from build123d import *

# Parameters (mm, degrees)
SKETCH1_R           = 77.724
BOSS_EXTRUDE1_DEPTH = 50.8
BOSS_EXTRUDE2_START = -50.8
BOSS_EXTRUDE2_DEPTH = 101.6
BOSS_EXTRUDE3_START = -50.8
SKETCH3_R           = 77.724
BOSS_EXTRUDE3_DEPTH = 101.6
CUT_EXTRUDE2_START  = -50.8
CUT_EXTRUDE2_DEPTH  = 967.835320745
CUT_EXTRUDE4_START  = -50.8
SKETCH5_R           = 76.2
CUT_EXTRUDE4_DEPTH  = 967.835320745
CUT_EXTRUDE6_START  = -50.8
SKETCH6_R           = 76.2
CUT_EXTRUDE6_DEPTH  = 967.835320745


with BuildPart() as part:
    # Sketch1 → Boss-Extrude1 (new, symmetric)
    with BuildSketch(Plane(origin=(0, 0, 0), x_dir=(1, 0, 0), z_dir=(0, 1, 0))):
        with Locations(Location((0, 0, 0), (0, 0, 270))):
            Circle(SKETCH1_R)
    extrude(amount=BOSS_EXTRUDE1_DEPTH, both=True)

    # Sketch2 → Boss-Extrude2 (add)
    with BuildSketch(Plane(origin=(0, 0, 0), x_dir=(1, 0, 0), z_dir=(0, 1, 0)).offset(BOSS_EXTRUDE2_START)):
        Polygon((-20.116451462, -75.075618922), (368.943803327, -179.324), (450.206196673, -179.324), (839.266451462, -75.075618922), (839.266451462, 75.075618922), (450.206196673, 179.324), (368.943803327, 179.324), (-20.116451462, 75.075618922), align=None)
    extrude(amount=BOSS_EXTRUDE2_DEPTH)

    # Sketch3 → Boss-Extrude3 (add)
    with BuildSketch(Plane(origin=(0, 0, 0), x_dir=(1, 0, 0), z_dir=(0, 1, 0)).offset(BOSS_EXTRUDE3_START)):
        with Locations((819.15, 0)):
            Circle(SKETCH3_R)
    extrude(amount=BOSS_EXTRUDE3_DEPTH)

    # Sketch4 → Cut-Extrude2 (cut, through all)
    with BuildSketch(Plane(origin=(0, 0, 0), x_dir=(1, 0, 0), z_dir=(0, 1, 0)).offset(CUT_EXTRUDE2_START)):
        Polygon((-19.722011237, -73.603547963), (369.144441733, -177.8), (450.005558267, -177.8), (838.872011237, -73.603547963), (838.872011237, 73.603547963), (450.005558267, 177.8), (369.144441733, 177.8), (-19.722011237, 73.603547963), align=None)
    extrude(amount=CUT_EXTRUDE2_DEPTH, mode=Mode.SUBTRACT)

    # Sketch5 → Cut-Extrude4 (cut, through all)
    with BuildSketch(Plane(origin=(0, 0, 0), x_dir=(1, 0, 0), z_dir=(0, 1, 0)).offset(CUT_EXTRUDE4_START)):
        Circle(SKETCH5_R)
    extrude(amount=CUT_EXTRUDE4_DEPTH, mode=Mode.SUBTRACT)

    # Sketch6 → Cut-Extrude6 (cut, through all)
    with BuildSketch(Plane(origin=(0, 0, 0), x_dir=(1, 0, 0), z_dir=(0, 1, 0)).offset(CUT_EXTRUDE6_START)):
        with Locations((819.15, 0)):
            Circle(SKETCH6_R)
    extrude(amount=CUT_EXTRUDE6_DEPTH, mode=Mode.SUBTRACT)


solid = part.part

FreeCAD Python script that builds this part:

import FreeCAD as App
import Part
import Sketcher
from FreeCAD import Vector
Q = App.Units.Quantity


def add_polygon(sketch, points):
    """Adds a closed chain of lines whose ends are joined by coincident constraints."""
    first, n = sketch.GeometryCount, len(points)
    for a, b in zip(points, points[1:] + points[:1]):
        sketch.addGeometry(Part.LineSegment(App.Vector(*a, 0), App.Vector(*b, 0)), False)
    for i in range(n):
        sketch.addConstraint(Sketcher.Constraint("Coincident", first + i, 2, first + (i + 1) % n, 1))

doc = App.newDocument("Part")
body = doc.addObject("PartDesign::Body", "Body")

sketch1 = doc.addObject("Sketcher::SketchObject", "Sketch")
body.addObject(sketch1)
sketch1.AttachmentSupport = (doc.XZ_Plane, [""])
sketch1.MapMode = "FlatFace"
sketch1.addGeometry(Part.Circle(Vector(0, 0, 0), Vector(0, 0, 1), 78), False)
sketch1.addConstraint([
    Sketcher.Constraint("Coincident", 0, 3, -1, 1),
    Sketcher.Constraint("Diameter", 0, Q("6.12 in")),
])
pad1 = doc.addObject("PartDesign::Pad", "Pad")
body.addObject(pad1)
pad1.Profile = sketch1
pad1.Length = Q("4 in")
pad1.Midplane = True

sketch2 = doc.addObject("Sketcher::SketchObject", "Sketch001")
body.addObject(sketch2)
sketch2.AttachmentSupport = (doc.XZ_Plane, [""])
sketch2.MapMode = "FlatFace"
sketch2.AttachmentOffset = App.Placement(Vector(0, 0, 2 * 25.4), App.Rotation())
add_polygon(sketch2, [(-20, 75), (369, 179), (450, 179), (839, 75), (839, -75), (450, -179), (369, -179), (-20, -75)])
sketch2.addConstraint([
    Sketcher.Constraint("Horizontal", 1),
    Sketcher.Constraint("Vertical", 3),
    Sketcher.Constraint("Horizontal", 5),
    Sketcher.Constraint("Vertical", 7),
    Sketcher.Constraint("Symmetric", 1, 2, 4, 2, -1),
    Sketcher.Constraint("Parallel", 0, 4),
    Sketcher.Constraint("Parallel", 2, 6),
    Sketcher.Constraint("Horizontal", 3, 2, 6, 2),
    Sketcher.Constraint("Horizontal", 2, 2, 7, 2),
    Sketcher.Constraint("Vertical", 0, 2, 5, 2),
    Sketcher.Constraint("Angle", 0, Q("15 deg")),
    Sketcher.Constraint("DistanceY", -1, 1, 0, 2, Q("7.06 in")),
    Sketcher.Constraint("DistanceX", 1, 1, 1, 2, 81.262393),
    Sketcher.Constraint("DistanceY", 3, 2, 3, 1, 150.151238),
    Sketcher.Constraint("DistanceX", -1, 1, 2, 2, 839.266451),
])
pad2 = doc.addObject("PartDesign::Pad", "Pad001")
body.addObject(pad2)
pad2.Profile = sketch2
pad2.Length = Q("4 in")
pad2.Reversed = True

sketch3 = doc.addObject("Sketcher::SketchObject", "Sketch002")
body.addObject(sketch3)
sketch3.AttachmentSupport = (doc.XZ_Plane, [""])
sketch3.MapMode = "FlatFace"
sketch3.AttachmentOffset = App.Placement(Vector(0, 0, 2 * 25.4), App.Rotation())
sketch3.addGeometry(Part.Circle(Vector(819, 0, 0), Vector(0, 0, 1), 78), False)
sketch3.addConstraint([
    Sketcher.Constraint("PointOnObject", 0, 3, -1),
    Sketcher.Constraint("Diameter", 0, Q("6.12 in")),
    Sketcher.Constraint("DistanceX", -1, 1, 0, 3, Q("32.25 in")),
])
pad3 = doc.addObject("PartDesign::Pad", "Pad002")
body.addObject(pad3)
pad3.Profile = sketch3
pad3.Length = Q("4 in")
pad3.Reversed = True

sketch4 = doc.addObject("Sketcher::SketchObject", "Sketch003")
body.addObject(sketch4)
sketch4.AttachmentSupport = (doc.XZ_Plane, [""])
sketch4.MapMode = "FlatFace"
sketch4.AttachmentOffset = App.Placement(Vector(0, 0, 2 * 25.4), App.Rotation())
add_polygon(sketch4, [(-20, 74), (369, 178), (450, 178), (839, 74), (839, -74), (450, -178), (369, -178), (-20, -74)])
sketch4.addConstraint([
    Sketcher.Constraint("Horizontal", 1),
    Sketcher.Constraint("Vertical", 3),
    Sketcher.Constraint("Horizontal", 5),
    Sketcher.Constraint("Vertical", 7),
    Sketcher.Constraint("Symmetric", 1, 2, 4, 2, -1),
    Sketcher.Constraint("Parallel", 0, 4),
    Sketcher.Constraint("Parallel", 2, 6),
    Sketcher.Constraint("Horizontal", 3, 2, 6, 2),
    Sketcher.Constraint("Horizontal", 2, 2, 7, 2),
    Sketcher.Constraint("Vertical", 0, 2, 5, 2),
    Sketcher.Constraint("DistanceY", -1, 1, 0, 2, Q("7 in")),
    Sketcher.Constraint("Angle", 0, Q("15 deg")),
    Sketcher.Constraint("DistanceX", 1, 1, 1, 2, 80.861117),
    Sketcher.Constraint("DistanceY", 3, 2, 3, 1, 147.207096),
    Sketcher.Constraint("DistanceX", -1, 1, 0, 2, 369.144442),
])
pocket1 = doc.addObject("PartDesign::Pocket", "Pocket")
body.addObject(pocket1)
pocket1.Profile = sketch4
pocket1.Type = "ThroughAll"

sketch5 = doc.addObject("Sketcher::SketchObject", "Sketch004")
body.addObject(sketch5)
sketch5.AttachmentSupport = (doc.XZ_Plane, [""])
sketch5.MapMode = "FlatFace"
sketch5.AttachmentOffset = App.Placement(Vector(0, 0, 2 * 25.4), App.Rotation())
sketch5.addGeometry(Part.Circle(Vector(0, 0, 0), Vector(0, 0, 1), 76), False)
sketch5.addConstraint([
    Sketcher.Constraint("Coincident", 0, 3, -1, 1),
    Sketcher.Constraint("Diameter", 0, Q("6 in")),
])
pocket2 = doc.addObject("PartDesign::Pocket", "Pocket001")
body.addObject(pocket2)
pocket2.Profile = sketch5
pocket2.Type = "ThroughAll"

sketch6 = doc.addObject("Sketcher::SketchObject", "Sketch005")
body.addObject(sketch6)
sketch6.AttachmentSupport = (doc.XZ_Plane, [""])
sketch6.MapMode = "FlatFace"
sketch6.AttachmentOffset = App.Placement(Vector(0, 0, 2 * 25.4), App.Rotation())
sketch6.addGeometry(Part.Circle(Vector(819, 0, 0), Vector(0, 0, 1), 76), False)
sketch6.addConstraint([
    Sketcher.Constraint("PointOnObject", 0, 3, -1),
    Sketcher.Constraint("Diameter", 0, Q("6 in")),
    Sketcher.Constraint("DistanceX", -1, 1, 0, 3, Q("32.25 in")),
])
pocket3 = doc.addObject("PartDesign::Pocket", "Pocket002")
body.addObject(pocket3)
pocket3.Profile = sketch6
pocket3.Type = "ThroughAll"

doc.recompute()
